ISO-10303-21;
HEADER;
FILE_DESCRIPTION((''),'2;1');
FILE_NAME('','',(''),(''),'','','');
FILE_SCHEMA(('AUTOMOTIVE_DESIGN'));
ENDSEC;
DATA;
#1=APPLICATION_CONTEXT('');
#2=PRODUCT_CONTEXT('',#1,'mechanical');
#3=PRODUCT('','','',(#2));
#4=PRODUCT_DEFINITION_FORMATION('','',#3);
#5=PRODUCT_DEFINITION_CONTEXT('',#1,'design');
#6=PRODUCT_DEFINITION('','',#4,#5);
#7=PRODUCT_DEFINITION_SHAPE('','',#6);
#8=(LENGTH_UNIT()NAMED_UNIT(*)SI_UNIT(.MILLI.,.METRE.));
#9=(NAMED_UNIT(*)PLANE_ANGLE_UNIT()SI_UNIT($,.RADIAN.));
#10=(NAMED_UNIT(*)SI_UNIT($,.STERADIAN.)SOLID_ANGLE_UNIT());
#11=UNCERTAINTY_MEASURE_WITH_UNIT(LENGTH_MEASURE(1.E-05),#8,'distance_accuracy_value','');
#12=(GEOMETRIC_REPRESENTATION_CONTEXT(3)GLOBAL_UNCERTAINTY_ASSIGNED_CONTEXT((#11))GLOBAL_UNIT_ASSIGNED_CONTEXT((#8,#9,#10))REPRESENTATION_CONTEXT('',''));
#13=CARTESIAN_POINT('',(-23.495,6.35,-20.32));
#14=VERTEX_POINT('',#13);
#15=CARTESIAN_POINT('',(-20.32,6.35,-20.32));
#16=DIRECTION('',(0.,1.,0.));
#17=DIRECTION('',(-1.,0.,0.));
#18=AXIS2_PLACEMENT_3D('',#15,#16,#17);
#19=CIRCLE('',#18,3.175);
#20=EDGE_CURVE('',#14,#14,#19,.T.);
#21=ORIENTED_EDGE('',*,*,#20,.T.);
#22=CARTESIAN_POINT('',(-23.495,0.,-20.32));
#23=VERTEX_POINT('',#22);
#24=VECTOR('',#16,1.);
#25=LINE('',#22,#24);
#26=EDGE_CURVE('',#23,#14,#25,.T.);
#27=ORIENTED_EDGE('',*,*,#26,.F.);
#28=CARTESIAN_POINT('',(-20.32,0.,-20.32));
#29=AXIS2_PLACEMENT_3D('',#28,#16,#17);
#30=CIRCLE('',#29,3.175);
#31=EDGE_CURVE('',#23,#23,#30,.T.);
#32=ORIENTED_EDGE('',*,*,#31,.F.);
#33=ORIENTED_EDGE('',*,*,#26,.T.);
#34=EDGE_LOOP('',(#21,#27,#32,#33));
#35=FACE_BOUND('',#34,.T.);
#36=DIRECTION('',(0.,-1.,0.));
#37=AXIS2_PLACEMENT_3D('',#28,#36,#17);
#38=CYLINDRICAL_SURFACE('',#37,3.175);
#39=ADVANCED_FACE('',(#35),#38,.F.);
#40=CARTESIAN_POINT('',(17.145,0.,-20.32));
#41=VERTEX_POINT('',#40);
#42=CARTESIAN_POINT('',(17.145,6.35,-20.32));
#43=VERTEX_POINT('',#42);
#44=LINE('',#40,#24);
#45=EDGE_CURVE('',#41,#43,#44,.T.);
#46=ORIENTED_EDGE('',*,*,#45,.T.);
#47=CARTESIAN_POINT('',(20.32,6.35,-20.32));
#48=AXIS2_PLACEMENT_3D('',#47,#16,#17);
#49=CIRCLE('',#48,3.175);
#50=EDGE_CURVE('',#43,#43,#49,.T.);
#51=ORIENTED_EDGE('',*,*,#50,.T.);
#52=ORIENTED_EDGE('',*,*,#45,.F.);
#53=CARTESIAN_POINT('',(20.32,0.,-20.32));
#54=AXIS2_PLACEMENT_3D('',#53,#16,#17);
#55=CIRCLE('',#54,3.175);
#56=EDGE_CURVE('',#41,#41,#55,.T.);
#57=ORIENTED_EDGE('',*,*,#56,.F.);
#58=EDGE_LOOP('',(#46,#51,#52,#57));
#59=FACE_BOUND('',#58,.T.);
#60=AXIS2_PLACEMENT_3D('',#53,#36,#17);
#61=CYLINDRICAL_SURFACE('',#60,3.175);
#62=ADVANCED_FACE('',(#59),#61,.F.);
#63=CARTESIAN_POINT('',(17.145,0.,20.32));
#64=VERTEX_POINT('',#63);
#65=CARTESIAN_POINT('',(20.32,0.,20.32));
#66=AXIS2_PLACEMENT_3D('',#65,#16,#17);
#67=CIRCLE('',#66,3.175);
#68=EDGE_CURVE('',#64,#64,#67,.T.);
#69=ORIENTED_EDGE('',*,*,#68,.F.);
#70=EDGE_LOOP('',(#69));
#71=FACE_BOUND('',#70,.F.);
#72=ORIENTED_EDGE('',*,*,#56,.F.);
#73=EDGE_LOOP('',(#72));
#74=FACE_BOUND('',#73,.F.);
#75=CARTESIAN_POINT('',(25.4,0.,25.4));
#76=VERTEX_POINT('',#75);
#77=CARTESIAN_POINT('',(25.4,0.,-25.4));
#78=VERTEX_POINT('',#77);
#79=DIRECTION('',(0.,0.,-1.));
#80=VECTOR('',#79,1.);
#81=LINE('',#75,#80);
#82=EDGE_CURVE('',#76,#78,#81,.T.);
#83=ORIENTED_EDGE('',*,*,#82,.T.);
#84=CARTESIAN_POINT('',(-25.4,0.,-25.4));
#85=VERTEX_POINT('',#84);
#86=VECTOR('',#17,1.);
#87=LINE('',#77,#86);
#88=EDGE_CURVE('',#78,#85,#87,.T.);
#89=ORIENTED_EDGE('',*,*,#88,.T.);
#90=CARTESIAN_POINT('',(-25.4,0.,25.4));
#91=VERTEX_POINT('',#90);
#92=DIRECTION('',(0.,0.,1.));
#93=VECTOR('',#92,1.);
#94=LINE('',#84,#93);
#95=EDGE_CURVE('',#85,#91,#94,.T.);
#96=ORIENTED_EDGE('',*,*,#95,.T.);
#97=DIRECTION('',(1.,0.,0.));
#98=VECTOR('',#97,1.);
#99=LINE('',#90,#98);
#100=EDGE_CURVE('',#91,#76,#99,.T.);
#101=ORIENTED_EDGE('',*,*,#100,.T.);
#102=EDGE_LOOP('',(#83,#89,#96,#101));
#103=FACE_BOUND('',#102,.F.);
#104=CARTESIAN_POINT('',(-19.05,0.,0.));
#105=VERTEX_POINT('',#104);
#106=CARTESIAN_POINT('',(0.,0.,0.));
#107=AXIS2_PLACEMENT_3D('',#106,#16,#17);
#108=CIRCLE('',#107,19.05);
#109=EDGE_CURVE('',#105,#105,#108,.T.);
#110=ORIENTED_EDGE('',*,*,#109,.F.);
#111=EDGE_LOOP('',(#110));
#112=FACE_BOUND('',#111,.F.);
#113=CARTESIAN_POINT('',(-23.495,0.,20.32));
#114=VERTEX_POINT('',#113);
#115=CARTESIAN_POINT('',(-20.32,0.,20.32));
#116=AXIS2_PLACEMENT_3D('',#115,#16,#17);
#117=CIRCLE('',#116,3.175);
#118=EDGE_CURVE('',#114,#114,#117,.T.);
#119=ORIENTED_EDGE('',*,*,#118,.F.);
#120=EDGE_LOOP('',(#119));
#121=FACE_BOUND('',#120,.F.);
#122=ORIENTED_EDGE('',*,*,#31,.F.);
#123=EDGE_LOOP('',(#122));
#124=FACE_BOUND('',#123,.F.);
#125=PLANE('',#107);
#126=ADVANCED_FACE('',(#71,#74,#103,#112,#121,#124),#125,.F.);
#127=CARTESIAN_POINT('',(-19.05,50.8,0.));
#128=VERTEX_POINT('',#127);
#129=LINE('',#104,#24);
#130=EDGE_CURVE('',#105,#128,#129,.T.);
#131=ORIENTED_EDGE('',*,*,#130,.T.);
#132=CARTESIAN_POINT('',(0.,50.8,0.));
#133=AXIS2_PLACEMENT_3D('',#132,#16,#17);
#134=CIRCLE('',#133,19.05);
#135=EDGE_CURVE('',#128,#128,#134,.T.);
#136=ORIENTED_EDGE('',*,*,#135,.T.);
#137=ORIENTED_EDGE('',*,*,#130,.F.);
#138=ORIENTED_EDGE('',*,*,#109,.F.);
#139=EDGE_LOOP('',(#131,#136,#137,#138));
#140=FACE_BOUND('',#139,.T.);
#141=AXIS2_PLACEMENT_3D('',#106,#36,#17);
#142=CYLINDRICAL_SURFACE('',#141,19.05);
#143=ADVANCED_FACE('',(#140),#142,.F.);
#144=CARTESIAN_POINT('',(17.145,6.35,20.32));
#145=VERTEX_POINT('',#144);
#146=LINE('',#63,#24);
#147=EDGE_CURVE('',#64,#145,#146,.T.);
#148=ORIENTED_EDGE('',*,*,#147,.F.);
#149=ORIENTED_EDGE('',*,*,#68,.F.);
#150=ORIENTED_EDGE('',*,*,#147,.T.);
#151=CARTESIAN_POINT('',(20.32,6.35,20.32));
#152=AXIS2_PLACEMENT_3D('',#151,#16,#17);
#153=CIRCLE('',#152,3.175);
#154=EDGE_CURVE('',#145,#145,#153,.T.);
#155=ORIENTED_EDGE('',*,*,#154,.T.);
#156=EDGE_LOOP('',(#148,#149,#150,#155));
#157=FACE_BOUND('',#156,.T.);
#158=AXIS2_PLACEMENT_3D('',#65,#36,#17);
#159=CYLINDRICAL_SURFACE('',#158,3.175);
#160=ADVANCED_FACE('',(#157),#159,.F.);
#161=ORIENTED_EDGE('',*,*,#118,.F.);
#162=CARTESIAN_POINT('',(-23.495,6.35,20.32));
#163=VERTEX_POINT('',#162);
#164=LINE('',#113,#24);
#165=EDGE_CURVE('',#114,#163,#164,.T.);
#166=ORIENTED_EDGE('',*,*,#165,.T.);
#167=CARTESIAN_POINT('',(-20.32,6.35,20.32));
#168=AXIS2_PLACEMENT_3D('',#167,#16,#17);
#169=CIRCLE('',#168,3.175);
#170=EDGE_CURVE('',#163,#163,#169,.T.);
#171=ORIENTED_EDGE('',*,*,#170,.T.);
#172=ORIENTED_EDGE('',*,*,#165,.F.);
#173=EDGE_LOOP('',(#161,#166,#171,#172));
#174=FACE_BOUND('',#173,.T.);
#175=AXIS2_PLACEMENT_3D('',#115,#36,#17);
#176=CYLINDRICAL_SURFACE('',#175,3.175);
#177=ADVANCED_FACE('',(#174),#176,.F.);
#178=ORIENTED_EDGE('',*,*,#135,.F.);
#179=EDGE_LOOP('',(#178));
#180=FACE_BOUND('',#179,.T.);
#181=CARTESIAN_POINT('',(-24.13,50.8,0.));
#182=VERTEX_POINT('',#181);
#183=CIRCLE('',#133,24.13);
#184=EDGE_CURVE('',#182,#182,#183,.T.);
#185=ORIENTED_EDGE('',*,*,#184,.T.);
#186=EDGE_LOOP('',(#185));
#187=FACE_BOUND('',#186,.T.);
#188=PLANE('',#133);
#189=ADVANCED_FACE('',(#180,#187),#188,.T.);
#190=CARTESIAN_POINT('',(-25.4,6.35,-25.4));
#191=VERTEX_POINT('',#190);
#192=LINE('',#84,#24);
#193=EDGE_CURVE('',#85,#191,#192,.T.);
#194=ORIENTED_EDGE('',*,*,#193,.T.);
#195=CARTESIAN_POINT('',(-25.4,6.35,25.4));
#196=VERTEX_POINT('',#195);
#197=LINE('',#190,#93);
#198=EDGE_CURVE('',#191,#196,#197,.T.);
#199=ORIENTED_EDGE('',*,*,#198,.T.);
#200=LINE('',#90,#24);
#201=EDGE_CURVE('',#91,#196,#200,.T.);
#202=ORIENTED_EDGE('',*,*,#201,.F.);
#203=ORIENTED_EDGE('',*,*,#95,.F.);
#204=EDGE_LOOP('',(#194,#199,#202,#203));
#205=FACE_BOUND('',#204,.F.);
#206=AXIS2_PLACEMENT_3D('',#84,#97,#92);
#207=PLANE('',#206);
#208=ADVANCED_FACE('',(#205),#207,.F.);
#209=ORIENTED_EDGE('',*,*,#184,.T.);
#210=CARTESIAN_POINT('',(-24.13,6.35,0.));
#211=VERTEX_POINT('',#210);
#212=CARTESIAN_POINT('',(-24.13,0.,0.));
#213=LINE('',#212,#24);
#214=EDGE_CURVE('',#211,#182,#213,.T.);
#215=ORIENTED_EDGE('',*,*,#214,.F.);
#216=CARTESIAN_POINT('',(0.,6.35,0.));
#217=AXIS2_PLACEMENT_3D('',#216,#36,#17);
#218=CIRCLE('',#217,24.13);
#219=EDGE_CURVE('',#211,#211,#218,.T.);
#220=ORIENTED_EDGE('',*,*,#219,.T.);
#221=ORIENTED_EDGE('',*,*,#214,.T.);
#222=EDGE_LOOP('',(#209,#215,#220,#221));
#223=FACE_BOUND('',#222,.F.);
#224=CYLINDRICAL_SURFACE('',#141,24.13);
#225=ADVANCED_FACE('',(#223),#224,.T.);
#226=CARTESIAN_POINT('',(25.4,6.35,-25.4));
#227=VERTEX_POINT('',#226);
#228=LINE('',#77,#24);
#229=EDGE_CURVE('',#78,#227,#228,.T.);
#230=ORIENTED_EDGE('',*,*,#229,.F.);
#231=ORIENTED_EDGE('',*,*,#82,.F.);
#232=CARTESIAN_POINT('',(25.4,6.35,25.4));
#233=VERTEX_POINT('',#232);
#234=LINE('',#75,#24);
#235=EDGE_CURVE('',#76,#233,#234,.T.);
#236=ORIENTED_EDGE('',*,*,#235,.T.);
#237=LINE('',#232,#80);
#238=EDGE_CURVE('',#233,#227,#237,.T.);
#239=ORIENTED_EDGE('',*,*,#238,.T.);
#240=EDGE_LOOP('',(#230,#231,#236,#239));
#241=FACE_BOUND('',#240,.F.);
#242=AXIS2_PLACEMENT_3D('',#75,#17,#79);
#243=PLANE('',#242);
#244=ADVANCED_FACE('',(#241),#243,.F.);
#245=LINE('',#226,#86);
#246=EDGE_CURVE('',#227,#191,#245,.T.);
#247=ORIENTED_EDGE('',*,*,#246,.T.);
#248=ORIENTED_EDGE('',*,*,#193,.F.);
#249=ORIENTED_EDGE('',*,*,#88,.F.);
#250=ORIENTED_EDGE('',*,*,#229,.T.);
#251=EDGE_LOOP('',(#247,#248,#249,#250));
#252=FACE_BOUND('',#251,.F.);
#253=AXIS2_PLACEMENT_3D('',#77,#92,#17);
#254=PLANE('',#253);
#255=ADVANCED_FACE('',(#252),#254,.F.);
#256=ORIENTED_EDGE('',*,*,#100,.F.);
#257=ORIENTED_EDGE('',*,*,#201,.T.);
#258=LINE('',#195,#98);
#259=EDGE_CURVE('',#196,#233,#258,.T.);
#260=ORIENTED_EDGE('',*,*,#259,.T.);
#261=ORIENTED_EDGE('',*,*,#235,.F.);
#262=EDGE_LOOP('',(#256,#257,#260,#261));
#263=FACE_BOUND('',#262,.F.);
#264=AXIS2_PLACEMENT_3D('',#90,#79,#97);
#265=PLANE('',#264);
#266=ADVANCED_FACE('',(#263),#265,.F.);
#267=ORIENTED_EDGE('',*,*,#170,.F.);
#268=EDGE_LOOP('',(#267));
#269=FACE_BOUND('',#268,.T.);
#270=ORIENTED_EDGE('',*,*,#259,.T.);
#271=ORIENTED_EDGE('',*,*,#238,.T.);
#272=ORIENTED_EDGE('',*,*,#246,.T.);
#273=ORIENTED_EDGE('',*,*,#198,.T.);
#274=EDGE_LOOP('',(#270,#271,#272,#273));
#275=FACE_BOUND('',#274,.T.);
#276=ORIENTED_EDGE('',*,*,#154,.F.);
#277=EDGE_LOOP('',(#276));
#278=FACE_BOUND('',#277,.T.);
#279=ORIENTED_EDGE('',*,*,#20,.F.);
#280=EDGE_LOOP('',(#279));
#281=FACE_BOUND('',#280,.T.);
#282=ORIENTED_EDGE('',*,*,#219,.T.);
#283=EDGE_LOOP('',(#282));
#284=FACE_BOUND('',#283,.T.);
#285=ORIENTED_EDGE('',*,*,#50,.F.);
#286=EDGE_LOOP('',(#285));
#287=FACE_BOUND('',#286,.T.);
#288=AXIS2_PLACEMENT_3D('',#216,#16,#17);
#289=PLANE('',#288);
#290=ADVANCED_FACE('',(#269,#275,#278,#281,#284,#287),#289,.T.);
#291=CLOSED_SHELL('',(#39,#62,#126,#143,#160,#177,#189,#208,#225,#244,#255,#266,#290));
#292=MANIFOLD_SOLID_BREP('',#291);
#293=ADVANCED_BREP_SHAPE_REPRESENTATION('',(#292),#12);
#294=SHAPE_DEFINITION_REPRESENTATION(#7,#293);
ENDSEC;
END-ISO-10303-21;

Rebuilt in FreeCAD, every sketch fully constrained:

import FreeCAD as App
import Part
import Sketcher
Q = App.Units.Quantity

doc = App.newDocument("Part")
body = doc.addObject("PartDesign::Body", "Body")

sketch1 = body.newObject("Sketcher::SketchObject", "Sketch")
sketch1.AttachmentSupport = (doc.getObject("XZ_Plane"), [""])
sketch1.MapMode = "FlatFace"
sketch1.addGeometry([
    Part.Circle(App.Vector(0, 0, 0), App.Vector(0, 0, 1), 24),
    Part.Circle(App.Vector(0, 0, 0), App.Vector(0, 0, 1), 19),
], False)
sketch1.addConstraint([
    Sketcher.Constraint("Coincident", 0, 3, -1, 1),
    Sketcher.Constraint("Coincident", 1, 3, -1, 1),
    Sketcher.Constraint("Diameter", 0, Q("1.9 in")),
    Sketcher.Constraint("Diameter", 1, Q("1.5 in")),
])
pad1 = body.newObject("PartDesign::Pad", "Pad")
pad1.Profile = sketch1
pad1.Length = Q("2 in")
pad1.Reversed = True

sketch2 = body.newObject("Sketcher::SketchObject", "Sketch001")
sketch2.AttachmentSupport = (doc.getObject("XZ_Plane"), [""])
sketch2.MapMode = "FlatFace"
sketch2.addGeometry([
    Part.LineSegment(App.Vector(-25, -25, 0), App.Vector(-25, 25, 0)),
    Part.LineSegment(App.Vector(-25, 25, 0), App.Vector(25, 25, 0)),
    Part.LineSegment(App.Vector(25, 25, 0), App.Vector(25, -25, 0)),
    Part.LineSegment(App.Vector(25, -25, 0), App.Vector(-25, -25, 0)),
    Part.Circle(App.Vector(0, 0, 0), App.Vector(0, 0, 1), 19),
], False)
sketch2.addConstraint([
    Sketcher.Constraint("Coincident", 0, 2, 1, 1),
    Sketcher.Constraint("Coincident", 1, 2, 2, 1),
    Sketcher.Constraint("Coincident", 2, 2, 3, 1),
    Sketcher.Constraint("Coincident", 3, 2, 0, 1),
    Sketcher.Constraint("Vertical", 0),
    Sketcher.Constraint("Horizontal", 1),
    Sketcher.Constraint("Vertical", 2),
    Sketcher.Constraint("Horizontal", 3),
    Sketcher.Constraint("Coincident", 4, 3, -1, 1),
    Sketcher.Constraint("Symmetric", 0, 2, 2, 2, -1, 1),
    Sketcher.Constraint("Equal", 3, 0),
    Sketcher.Constraint("DistanceX", 1, 1, 1, 2, Q("2 in")),
    Sketcher.Constraint("Diameter", 4, Q("1.5 in")),
])
pad2 = body.newObject("PartDesign::Pad", "Pad001")
pad2.Profile = sketch2
pad2.Length = Q("0.25 in")
pad2.Reversed = True

sketch3 = body.newObject("Sketcher::SketchObject", "Sketch002")
sketch3.AttachmentSupport = (doc.getObject("XZ_Plane"), [""])
sketch3.MapMode = "FlatFace"
sketch3.addGeometry([
    Part.Circle(App.Vector(20.3, -20.3, 0), App.Vector(0, 0, 1), 3.2),
    Part.Circle(App.Vector(20.3, 20.3, 0), App.Vector(0, 0, 1), 3.2),
    Part.Circle(App.Vector(-20.3, -20.3, 0), App.Vector(0, 0, 1), 3.2),
    Part.Circle(App.Vector(-20.3, 20.3, 0), App.Vector(0, 0, 1), 3.2),
], False)
sketch3.addConstraint([
    Sketcher.Constraint("Equal", 0, 1),
    Sketcher.Constraint("Equal", 1, 2),
    Sketcher.Constraint("Equal", 2, 3),
    Sketcher.Constraint("Symmetric", 1, 3, 2, 3, -1, 1),
    Sketcher.Constraint("Symmetric", 0, 3, 3, 3, -1, 1),
    Sketcher.Constraint("Symmetric", 0, 3, 2, 3, -2),
    Sketcher.Constraint("Diameter", 0, Q("0.25 in")),
    Sketcher.Constraint("DistanceX", -1, 1, 0, 3, Q("0.8 in")),
    Sketcher.Constraint("DistanceY", 0, 3, -1, 1, Q("0.8 in")),
])
pocket1 = body.newObject("PartDesign::Pocket", "Pocket")
pocket1.Profile = sketch3
pocket1.Length = Q("0.25 in")

doc.recompute()
